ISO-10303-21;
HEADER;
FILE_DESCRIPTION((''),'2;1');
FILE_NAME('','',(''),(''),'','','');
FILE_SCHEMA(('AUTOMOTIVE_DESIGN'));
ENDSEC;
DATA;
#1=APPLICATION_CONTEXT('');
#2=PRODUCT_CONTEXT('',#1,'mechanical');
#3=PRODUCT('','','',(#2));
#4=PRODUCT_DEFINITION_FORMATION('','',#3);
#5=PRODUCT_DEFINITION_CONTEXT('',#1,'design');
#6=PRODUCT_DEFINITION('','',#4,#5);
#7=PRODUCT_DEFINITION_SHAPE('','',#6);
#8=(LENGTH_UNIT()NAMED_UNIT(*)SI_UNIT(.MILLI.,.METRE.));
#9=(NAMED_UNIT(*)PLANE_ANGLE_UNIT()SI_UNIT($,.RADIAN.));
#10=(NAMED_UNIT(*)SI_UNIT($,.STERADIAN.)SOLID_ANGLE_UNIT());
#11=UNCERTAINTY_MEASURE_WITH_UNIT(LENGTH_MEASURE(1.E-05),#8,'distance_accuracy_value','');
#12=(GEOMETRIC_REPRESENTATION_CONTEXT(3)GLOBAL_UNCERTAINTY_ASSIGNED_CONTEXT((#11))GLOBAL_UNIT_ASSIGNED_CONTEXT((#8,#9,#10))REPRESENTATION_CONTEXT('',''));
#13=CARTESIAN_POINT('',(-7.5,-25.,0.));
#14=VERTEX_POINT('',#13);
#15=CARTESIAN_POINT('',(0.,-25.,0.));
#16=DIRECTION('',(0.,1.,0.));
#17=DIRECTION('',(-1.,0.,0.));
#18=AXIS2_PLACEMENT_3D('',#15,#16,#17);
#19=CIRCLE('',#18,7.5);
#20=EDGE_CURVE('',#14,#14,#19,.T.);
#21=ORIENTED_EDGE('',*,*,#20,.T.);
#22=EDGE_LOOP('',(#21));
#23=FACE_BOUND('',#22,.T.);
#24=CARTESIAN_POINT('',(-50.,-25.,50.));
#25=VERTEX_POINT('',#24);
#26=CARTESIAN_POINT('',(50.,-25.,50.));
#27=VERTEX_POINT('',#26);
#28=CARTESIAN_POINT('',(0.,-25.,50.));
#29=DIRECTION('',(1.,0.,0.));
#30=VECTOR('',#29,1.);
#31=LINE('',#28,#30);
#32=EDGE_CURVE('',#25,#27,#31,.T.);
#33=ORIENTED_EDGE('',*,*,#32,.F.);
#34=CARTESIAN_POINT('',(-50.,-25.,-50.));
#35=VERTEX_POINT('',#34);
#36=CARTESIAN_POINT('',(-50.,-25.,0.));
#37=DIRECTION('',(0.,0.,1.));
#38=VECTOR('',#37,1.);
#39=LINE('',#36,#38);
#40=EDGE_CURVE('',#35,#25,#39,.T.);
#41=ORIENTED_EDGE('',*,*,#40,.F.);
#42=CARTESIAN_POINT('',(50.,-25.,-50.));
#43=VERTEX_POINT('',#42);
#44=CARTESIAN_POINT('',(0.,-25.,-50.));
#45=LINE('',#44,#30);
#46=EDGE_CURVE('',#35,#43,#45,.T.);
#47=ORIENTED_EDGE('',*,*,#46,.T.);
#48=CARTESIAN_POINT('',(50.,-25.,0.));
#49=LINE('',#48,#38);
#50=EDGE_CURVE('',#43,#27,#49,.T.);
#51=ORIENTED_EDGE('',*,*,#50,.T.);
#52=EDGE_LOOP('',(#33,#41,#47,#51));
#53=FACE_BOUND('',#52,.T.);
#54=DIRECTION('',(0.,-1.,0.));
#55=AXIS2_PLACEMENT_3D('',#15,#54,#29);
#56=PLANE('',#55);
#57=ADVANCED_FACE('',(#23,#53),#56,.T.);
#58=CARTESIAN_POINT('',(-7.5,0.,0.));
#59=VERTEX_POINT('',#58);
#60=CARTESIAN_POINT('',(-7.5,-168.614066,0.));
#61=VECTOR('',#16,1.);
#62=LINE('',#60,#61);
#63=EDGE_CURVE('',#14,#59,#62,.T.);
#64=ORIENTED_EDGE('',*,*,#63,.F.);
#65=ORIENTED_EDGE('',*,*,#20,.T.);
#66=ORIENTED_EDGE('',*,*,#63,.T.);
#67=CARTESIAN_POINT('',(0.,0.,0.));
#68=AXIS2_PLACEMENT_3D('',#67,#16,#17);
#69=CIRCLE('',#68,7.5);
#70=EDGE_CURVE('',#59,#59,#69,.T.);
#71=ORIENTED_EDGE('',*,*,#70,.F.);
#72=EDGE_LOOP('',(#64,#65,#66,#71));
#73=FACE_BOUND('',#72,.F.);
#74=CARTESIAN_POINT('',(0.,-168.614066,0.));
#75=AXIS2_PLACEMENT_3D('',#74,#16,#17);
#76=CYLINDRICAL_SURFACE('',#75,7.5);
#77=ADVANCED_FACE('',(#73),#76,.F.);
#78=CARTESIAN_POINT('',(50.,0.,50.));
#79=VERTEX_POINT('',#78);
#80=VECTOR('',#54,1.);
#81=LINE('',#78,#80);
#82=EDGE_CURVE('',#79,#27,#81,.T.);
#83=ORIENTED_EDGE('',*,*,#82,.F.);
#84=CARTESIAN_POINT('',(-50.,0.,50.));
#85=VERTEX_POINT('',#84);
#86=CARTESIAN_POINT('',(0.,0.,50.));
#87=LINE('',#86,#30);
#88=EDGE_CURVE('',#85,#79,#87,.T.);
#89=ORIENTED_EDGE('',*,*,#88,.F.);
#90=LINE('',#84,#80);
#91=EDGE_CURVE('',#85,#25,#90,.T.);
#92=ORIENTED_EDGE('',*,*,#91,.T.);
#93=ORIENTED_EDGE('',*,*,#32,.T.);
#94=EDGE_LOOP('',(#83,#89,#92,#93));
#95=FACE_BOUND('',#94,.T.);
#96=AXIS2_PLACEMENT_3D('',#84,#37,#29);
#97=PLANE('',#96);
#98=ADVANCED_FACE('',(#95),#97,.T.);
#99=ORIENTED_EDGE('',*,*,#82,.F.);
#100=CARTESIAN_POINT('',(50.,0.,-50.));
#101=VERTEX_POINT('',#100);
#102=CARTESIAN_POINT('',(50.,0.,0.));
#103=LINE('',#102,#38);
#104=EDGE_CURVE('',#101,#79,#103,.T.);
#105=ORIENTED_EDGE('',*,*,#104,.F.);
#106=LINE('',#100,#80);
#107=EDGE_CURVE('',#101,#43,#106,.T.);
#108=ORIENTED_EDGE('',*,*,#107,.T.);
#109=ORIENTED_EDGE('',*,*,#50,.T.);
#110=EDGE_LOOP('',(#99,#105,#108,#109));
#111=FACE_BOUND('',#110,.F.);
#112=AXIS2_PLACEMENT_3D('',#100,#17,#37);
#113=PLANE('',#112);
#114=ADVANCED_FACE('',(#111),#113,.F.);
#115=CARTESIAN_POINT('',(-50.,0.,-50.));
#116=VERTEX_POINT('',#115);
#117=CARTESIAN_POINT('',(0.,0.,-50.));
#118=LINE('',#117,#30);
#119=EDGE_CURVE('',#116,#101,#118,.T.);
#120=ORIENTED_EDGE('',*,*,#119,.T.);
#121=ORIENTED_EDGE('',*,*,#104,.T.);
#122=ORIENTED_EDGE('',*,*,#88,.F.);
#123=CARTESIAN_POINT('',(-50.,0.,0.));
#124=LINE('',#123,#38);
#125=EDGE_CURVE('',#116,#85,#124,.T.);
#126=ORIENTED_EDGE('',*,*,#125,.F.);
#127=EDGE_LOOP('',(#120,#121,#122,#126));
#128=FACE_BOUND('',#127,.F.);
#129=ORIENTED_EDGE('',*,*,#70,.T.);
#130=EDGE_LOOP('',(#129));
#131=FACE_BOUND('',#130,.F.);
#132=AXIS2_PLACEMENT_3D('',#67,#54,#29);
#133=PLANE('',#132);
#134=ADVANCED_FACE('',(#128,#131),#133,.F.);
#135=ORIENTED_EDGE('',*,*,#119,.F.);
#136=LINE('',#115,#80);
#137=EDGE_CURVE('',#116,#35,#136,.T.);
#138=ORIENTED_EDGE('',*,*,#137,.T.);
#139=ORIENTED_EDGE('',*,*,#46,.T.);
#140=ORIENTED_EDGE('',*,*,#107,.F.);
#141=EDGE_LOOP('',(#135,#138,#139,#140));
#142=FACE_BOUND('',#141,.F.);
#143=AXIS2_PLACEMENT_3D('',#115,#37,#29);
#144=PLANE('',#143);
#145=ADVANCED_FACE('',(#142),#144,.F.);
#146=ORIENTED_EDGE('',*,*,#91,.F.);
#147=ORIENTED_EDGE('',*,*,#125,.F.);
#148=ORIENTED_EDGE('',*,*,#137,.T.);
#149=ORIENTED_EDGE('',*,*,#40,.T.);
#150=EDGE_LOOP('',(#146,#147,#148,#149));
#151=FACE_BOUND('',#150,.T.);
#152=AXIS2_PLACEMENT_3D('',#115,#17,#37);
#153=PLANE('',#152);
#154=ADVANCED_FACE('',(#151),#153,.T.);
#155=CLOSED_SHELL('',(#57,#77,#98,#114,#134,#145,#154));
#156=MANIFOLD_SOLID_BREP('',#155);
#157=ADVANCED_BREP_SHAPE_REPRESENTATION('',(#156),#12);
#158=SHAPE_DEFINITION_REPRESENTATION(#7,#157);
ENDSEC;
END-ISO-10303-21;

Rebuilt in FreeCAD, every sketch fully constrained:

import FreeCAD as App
import Part
import Sketcher
Q = App.Units.Quantity

doc = App.newDocument("Part")
body = doc.addObject("PartDesign::Body", "Body")

# Sketch on XZ plane
sketch1 = doc.addObject("Sketcher::SketchObject", "Sketch")
body.addObject(sketch1)
sketch1.AttachmentSupport = (doc.XZ_Plane, [""])
sketch1.MapMode = "FlatFace"
sketch1.addGeometry([
    Part.LineSegment(App.Vector(-50, 50, 0), App.Vector(-50, -50, 0)),
    Part.LineSegment(App.Vector(-50, -50, 0), App.Vector(50, -50, 0)),
    Part.LineSegment(App.Vector(50, -50, 0), App.Vector(50, 50, 0)),
    Part.LineSegment(App.Vector(50, 50, 0), App.Vector(-50, 50, 0)),
], False)
sketch1.addConstraint([
    Sketcher.Constraint("Coincident", 0, 2, 1, 1),
    Sketcher.Constraint("Coincident", 1, 2, 2, 1),
    Sketcher.Constraint("Coincident", 2, 2, 3, 1),
    Sketcher.Constraint("Coincident", 3, 2, 0, 1),
    Sketcher.Constraint("Vertical", 0),
    Sketcher.Constraint("Horizontal", 1),
    Sketcher.Constraint("Vertical", 2),
    Sketcher.Constraint("Horizontal", 3),
    Sketcher.Constraint("Symmetric", 0, 2, 2, 2, -1, 1),
    Sketcher.Constraint("Equal", 3, 0),
    Sketcher.Constraint("DistanceX", 1, 1, 1, 2, Q("100 mm")),
])
pad1 = doc.addObject("PartDesign::Pad", "Pad")
body.addObject(pad1)
pad1.Profile = sketch1
pad1.Length = 25

# Sketch on XZ plane
sketch2 = doc.addObject("Sketcher::SketchObject", "Sketch001")
body.addObject(sketch2)
sketch2.AttachmentSupport = (doc.XZ_Plane, [""])
sketch2.MapMode = "FlatFace"
sketch2.AttachmentOffset = App.Placement(App.Vector(0, 0, 25), App.Rotation())
sketch2.addGeometry(Part.Circle(App.Vector(0, 0, 0), App.Vector(0, 0, 1), 7.5), False)
sketch2.addConstraint([
    Sketcher.Constraint("Coincident", 0, 3, -1, 1),
    Sketcher.Constraint("Diameter", 0, Q("15 mm")),
])
doc.recompute()
hole = doc.addObject("PartDesign::Hole", "Hole")
body.addObject(hole)
hole.Profile = sketch2
hole.ThreadType = "None"
hole.Diameter = 15
hole.DepthType = "ThroughAll"

doc.recompute()
